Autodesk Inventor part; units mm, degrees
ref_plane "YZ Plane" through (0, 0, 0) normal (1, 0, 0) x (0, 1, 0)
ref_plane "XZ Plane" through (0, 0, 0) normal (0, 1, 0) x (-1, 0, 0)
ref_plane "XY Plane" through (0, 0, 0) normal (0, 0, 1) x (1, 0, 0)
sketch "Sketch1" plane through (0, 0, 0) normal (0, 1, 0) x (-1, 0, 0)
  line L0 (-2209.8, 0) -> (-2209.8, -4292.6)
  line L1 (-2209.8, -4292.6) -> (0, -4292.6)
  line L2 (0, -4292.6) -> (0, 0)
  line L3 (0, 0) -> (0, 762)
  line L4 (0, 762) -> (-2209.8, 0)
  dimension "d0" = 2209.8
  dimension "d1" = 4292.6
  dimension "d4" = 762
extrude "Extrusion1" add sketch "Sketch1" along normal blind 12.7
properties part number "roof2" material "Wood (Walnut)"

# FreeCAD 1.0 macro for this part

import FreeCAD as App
import Part
import Sketcher

V = App.Vector
Q = App.Units.Quantity

doc = App.newDocument("Part")
body = doc.addObject("PartDesign::Body", "Body")

# Sketch on XZ plane
sketch1 = body.newObject("Sketcher::SketchObject", "Sketch")
sketch1.AttachmentSupport = (doc.getObject("XZ_Plane"), [""])
sketch1.MapMode = "FlatFace"
sketch1.addGeometry(Part.LineSegment(V(0, 762, 0), V(2210, 0, 0)), False)
sketch1.addGeometry(Part.LineSegment(V(2210, 0, 0), V(2210, -4293, 0)), False)
sketch1.addGeometry(Part.LineSegment(V(2210, -4293, 0), V(0, -4293, 0)), False)
sketch1.addGeometry(Part.LineSegment(V(0, -4293, 0), V(0, 762, 0)), False)
sketch1.addConstraint(Sketcher.Constraint("Coincident", 0, 2, 1, 1))
sketch1.addConstraint(Sketcher.Constraint("Coincident", 1, 2, 2, 1))
sketch1.addConstraint(Sketcher.Constraint("Coincident", 2, 2, 3, 1))
sketch1.addConstraint(Sketcher.Constraint("Coincident", 3, 2, 0, 1))
sketch1.addConstraint(Sketcher.Constraint("Vertical", 1))
sketch1.addConstraint(Sketcher.Constraint("Horizontal", 2))
sketch1.addConstraint(Sketcher.Constraint("Vertical", 3))
sketch1.addConstraint(Sketcher.Constraint("PointOnObject", 0, 2, -1))
sketch1.addConstraint(Sketcher.Constraint("PointOnObject", 2, 2, -2))
sketch1.addConstraint(Sketcher.Constraint("DistanceX", 2, 2, 2, 1, Q("87 in")))
sketch1.addConstraint(Sketcher.Constraint("DistanceY", 1, 2, 1, 1, Q("169 in")))
sketch1.addConstraint(Sketcher.Constraint("DistanceY", -1, 1, 3, 2, Q("30 in")))
pad1 = body.newObject("PartDesign::Pad", "Pad")
pad1.Profile = sketch1
pad1.Length = Q("0.5 in")
pad1.Reversed = True

doc.recompute()
